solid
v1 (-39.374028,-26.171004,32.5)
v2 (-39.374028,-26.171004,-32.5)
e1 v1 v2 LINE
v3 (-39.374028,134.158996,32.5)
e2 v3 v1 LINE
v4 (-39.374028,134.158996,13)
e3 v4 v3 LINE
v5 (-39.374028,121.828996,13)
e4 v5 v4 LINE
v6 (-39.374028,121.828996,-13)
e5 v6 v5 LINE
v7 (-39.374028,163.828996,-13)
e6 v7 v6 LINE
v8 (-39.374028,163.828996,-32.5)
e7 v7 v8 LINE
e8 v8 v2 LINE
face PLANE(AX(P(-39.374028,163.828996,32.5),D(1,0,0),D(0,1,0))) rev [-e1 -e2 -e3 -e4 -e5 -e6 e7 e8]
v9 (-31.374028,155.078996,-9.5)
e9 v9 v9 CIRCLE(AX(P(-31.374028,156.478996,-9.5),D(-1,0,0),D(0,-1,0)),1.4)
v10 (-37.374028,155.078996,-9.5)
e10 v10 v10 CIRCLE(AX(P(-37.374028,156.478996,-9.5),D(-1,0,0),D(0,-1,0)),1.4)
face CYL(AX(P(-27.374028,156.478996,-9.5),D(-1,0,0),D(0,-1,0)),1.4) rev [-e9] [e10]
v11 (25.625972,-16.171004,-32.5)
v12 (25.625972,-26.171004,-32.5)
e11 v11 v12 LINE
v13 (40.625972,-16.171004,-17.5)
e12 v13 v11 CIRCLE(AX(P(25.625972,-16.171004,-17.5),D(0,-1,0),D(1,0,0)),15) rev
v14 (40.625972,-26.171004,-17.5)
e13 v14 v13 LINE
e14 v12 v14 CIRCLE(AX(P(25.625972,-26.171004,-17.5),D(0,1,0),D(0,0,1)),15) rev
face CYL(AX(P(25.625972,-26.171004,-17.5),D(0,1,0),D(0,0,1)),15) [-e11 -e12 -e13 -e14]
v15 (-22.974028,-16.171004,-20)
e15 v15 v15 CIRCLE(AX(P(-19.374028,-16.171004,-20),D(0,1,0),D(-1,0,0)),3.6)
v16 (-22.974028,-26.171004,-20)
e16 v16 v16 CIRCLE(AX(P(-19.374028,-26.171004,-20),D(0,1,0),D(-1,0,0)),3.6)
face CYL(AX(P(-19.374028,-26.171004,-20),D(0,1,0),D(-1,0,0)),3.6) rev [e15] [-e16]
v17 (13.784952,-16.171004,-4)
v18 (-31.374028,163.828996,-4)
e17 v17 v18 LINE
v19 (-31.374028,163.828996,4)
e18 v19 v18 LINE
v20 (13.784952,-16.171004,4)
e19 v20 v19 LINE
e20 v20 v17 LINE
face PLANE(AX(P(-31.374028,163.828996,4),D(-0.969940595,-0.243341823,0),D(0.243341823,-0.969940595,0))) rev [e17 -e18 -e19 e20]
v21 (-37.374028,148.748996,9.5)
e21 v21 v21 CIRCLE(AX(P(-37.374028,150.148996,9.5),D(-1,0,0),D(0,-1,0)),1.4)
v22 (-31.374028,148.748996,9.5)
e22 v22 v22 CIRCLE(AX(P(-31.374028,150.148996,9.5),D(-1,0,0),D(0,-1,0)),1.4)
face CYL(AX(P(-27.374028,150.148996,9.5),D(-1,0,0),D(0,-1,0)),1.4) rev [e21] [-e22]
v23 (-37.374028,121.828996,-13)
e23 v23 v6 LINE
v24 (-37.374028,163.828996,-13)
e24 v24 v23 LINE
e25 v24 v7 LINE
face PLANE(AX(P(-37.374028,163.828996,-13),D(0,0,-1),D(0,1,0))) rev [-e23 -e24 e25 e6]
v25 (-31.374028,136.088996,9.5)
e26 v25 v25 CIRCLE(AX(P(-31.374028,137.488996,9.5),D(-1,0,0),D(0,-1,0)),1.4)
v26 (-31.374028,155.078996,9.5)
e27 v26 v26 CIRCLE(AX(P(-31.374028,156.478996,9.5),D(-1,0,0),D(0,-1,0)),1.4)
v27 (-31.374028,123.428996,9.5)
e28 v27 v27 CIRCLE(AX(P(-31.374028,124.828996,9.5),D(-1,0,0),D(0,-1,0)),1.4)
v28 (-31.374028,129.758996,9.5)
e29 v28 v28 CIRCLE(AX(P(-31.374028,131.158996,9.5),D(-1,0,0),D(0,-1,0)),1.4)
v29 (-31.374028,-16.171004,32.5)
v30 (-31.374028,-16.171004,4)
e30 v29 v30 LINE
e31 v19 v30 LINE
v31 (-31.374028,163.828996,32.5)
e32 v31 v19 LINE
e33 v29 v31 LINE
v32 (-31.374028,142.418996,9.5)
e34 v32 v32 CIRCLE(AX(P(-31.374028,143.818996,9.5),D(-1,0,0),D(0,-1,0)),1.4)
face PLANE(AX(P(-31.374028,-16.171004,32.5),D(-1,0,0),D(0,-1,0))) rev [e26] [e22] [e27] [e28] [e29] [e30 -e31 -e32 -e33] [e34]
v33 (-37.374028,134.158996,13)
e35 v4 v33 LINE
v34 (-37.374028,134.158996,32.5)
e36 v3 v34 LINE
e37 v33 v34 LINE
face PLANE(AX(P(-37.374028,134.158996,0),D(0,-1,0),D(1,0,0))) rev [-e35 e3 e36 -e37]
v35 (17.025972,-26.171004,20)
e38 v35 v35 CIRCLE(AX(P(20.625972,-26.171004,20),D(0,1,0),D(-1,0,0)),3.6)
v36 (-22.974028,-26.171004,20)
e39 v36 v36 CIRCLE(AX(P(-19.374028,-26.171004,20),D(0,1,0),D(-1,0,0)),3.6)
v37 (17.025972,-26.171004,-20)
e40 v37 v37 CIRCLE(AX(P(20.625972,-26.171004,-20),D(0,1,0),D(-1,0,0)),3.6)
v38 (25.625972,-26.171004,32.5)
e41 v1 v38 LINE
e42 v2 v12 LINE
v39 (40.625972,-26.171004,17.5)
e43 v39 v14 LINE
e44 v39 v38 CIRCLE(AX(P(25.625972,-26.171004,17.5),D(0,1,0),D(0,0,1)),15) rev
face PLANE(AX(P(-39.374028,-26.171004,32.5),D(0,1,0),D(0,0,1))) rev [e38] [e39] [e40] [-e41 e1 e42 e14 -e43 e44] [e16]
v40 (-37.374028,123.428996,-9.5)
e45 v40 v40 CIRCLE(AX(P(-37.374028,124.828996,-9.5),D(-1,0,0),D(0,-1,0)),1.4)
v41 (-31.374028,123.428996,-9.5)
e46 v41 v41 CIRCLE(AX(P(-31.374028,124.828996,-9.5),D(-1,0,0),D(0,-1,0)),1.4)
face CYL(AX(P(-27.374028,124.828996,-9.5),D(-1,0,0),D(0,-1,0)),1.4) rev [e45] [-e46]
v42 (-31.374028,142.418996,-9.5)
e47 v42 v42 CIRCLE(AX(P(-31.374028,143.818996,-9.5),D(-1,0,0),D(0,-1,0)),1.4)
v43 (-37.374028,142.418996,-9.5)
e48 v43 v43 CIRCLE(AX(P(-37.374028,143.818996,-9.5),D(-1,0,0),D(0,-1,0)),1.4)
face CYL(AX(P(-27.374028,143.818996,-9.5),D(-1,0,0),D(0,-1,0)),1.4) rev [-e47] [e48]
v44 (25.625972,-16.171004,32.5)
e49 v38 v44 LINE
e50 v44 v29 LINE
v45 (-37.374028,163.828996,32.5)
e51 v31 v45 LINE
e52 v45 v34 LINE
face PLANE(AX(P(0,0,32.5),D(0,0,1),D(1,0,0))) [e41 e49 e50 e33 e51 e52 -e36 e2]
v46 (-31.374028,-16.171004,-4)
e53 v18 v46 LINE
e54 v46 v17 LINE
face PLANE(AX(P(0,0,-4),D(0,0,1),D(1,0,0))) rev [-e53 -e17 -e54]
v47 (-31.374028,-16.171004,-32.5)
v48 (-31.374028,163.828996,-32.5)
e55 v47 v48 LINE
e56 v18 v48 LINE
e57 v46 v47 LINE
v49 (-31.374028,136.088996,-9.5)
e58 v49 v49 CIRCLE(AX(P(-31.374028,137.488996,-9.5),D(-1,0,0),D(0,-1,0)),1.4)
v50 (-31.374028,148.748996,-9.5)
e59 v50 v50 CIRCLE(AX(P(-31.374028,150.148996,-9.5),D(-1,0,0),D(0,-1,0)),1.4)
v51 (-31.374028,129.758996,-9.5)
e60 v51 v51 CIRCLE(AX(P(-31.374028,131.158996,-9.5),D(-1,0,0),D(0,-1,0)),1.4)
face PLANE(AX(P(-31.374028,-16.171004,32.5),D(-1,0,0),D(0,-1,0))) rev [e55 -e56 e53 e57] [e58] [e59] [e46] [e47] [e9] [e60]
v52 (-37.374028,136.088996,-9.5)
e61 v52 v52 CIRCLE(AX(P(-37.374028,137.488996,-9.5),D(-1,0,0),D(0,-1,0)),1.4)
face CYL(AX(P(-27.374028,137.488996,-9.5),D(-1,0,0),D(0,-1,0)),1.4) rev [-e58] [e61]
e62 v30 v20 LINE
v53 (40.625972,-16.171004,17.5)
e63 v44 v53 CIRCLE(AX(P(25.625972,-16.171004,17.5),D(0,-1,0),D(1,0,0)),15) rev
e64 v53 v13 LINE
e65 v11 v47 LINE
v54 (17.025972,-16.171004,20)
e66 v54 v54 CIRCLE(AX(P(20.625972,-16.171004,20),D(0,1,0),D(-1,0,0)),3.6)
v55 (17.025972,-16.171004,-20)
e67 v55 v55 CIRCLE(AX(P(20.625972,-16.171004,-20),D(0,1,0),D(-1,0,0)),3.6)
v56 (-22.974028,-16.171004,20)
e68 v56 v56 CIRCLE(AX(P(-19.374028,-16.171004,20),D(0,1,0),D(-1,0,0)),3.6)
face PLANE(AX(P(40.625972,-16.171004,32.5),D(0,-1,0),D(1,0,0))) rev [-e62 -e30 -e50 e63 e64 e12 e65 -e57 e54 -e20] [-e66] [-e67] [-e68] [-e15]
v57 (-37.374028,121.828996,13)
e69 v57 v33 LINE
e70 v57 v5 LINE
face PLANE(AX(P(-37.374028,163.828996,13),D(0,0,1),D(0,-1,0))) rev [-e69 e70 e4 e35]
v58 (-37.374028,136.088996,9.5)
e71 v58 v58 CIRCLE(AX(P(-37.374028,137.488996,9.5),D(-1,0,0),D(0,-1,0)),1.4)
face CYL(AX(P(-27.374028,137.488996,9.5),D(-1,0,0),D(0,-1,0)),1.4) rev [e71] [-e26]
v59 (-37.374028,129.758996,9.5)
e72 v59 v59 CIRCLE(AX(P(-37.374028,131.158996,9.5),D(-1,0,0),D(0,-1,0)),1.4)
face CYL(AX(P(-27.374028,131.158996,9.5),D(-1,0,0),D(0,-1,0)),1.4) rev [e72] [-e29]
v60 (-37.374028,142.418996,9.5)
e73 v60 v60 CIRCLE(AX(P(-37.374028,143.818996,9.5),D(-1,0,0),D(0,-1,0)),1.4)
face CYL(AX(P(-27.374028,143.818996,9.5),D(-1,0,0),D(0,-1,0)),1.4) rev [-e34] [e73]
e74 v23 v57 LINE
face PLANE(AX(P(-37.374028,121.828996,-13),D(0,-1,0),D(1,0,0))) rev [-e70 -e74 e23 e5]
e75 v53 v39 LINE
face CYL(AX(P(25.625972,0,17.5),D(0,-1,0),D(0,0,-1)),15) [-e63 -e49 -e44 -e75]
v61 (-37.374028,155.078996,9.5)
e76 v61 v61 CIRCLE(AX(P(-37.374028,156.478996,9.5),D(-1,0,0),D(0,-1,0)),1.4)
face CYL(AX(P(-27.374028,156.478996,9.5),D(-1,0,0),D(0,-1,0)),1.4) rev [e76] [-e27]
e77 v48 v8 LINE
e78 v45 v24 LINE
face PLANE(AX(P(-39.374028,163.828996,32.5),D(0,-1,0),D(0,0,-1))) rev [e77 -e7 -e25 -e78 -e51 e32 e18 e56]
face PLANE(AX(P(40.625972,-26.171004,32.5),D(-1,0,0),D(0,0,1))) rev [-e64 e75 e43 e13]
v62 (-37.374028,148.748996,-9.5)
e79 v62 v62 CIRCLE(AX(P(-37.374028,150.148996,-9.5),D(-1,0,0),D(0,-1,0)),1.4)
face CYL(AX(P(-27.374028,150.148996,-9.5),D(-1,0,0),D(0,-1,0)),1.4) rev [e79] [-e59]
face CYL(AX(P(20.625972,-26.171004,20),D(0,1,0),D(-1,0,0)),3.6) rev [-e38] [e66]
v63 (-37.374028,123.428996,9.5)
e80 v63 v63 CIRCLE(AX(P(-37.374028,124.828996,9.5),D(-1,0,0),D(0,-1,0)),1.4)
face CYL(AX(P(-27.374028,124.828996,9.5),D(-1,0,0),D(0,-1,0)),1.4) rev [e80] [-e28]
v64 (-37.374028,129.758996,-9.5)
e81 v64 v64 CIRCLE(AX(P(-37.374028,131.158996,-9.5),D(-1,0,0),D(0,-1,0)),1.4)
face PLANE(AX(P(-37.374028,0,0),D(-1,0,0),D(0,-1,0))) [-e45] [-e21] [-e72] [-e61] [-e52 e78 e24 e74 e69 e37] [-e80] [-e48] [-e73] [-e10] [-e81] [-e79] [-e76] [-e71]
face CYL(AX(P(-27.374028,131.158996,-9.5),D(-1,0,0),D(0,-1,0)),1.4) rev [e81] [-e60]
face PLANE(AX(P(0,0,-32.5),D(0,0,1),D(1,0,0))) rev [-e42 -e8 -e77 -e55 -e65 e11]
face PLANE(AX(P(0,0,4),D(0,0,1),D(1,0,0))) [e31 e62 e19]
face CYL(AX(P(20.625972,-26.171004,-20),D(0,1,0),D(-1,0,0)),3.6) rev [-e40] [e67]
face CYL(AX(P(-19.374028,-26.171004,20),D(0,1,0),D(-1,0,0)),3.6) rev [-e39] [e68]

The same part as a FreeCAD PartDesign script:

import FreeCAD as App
import Part
import Sketcher


def edges_at(feature, points):
    """Names of the edges that pass closest to the given points."""
    edges = feature.Shape.Edges
    near = lambda p: min(range(len(edges)), key=lambda i: edges[i].distToShape(Part.Vertex(*p))[0])
    return sorted({f"Edge{near(p) + 1}" for p in points})


def add_polygon(sketch, points):
    """Adds a closed chain of lines whose ends are joined by coincident constraints."""
    first, n = sketch.GeometryCount, len(points)
    for a, b in zip(points, points[1:] + points[:1]):
        sketch.addGeometry(Part.LineSegment(App.Vector(*a, 0), App.Vector(*b, 0)), False)
    for i in range(n):
        sketch.addConstraint(Sketcher.Constraint("Coincident", first + i, 2, first + (i + 1) % n, 1))

doc = App.newDocument("Part")
body = doc.addObject("PartDesign::Body", "Body")

# Sketch on XY plane
sketch1 = body.newObject("Sketcher::SketchObject", "Sketch")
sketch1.AttachmentSupport = (doc.getObject("XY_Plane"), [""])
sketch1.MapMode = "FlatFace"
add_polygon(sketch1, [(-39, 164), (-39, -26), (41, -26), (41, -16), (-31, -16), (-31, 164)])  # lines 0-5
sketch1.addConstraint(Sketcher.Constraint("Vertical", 0))
sketch1.addConstraint(Sketcher.Constraint("Horizontal", 1))
sketch1.addConstraint(Sketcher.Constraint("Vertical", 2))
sketch1.addConstraint(Sketcher.Constraint("Horizontal", 3))
sketch1.addConstraint(Sketcher.Constraint("Vertical", 4))
sketch1.addConstraint(Sketcher.Constraint("Horizontal", 5))
sketch1.addConstraint(Sketcher.Constraint("DistanceX", 1, 1, 1, 2, 80.0))
sketch1.addConstraint(Sketcher.Constraint("DistanceX", 3, 2, 3, 1, 72.0))
sketch1.addConstraint(Sketcher.Constraint("DistanceY", 0, 2, 0, 1, 190.0))
sketch1.addConstraint(Sketcher.Constraint("DistanceY", 2, 1, 2, 2, 10.0))
sketch1.addConstraint(Sketcher.Constraint("DistanceX", 0, 2, -1, 1, 39.374028))
sketch1.addConstraint(Sketcher.Constraint("DistanceY", 0, 2, -1, 1, 26.171004))
pad1 = body.newObject("PartDesign::Pad", "Pad")
pad1.Profile = sketch1
pad1.Length = 65
pad1.Midplane = True

# Sketch on XY plane
sketch2 = body.newObject("Sketcher::SketchObject", "Sketch001")
sketch2.AttachmentSupport = (doc.getObject("XY_Plane"), [""])
sketch2.MapMode = "FlatFace"
add_polygon(sketch2, [(14, -16), (-31, 164), (-31, -16)])  # lines 0-2
sketch2.addConstraint(Sketcher.Constraint("Vertical", 1))
sketch2.addConstraint(Sketcher.Constraint("Horizontal", 2))
sketch2.addConstraint(Sketcher.Constraint("DistanceY", 1, 2, 1, 1, 180.0))
sketch2.addConstraint(Sketcher.Constraint("DistanceX", 2, 1, 2, 2, 45.15898))
sketch2.addConstraint(Sketcher.Constraint("DistanceX", 0, 2, -1, 1, 31.374028))
sketch2.addConstraint(Sketcher.Constraint("DistanceY", -1, 1, 0, 2, 163.828996))
pad2 = body.newObject("PartDesign::Pad", "Pad001")
pad2.Profile = sketch2
pad2.Length = 8
pad2.Midplane = True

# Sketch on YZ plane
sketch3 = body.newObject("Sketcher::SketchObject", "Sketch002")
sketch3.AttachmentSupport = (doc.getObject("YZ_Plane"), [""])
sketch3.MapMode = "FlatFace"
sketch3.AttachmentOffset = App.Placement(App.Vector(0, 0, -39.374028), App.Rotation())
add_polygon(sketch3, [(164, -13), (122, -13), (122, 13), (164, 13)])  # lines 0-3
sketch3.addConstraint(Sketcher.Constraint("Horizontal", 0))
sketch3.addConstraint(Sketcher.Constraint("Vertical", 1))
sketch3.addConstraint(Sketcher.Constraint("Horizontal", 2))
sketch3.addConstraint(Sketcher.Constraint("Vertical", 3))
sketch3.addConstraint(Sketcher.Constraint("DistanceX", 0, 2, 0, 1, 42.0))
sketch3.addConstraint(Sketcher.Constraint("DistanceY", 1, 1, 1, 2, 26.0))
sketch3.addConstraint(Sketcher.Constraint("DistanceY", 0, 2, -1, 1, 13.0))
sketch3.addConstraint(Sketcher.Constraint("DistanceX", -1, 1, 0, 2, 121.828996))
pocket1 = body.newObject("PartDesign::Pocket", "Pocket")
pocket1.Profile = sketch3
pocket1.Length = 2
pocket1.Reversed = True

# Sketch on YZ plane
sketch4 = body.newObject("Sketcher::SketchObject", "Sketch003")
sketch4.AttachmentSupport = (doc.getObject("YZ_Plane"), [""])
sketch4.MapMode = "FlatFace"
sketch4.AttachmentOffset = App.Placement(App.Vector(0, 0, -37.374028), App.Rotation())
sketch4.addGeometry(Part.Circle(App.Vector(124.8, -9.5, 0), App.Vector(0, 0, 1), 1.4), False)
sketch4.addGeometry(Part.Circle(App.Vector(124.8, 9.5, 0), App.Vector(0, 0, 1), 1.4), False)
sketch4.addGeometry(Part.Circle(App.Vector(131.2, -9.5, 0), App.Vector(0, 0, 1), 1.4), False)
sketch4.addGeometry(Part.Circle(App.Vector(131.2, 9.5, 0), App.Vector(0, 0, 1), 1.4), False)
sketch4.addGeometry(Part.Circle(App.Vector(137.5, -9.5, 0), App.Vector(0, 0, 1), 1.4), False)
sketch4.addGeometry(Part.Circle(App.Vector(137.5, 9.5, 0), App.Vector(0, 0, 1), 1.4), False)
sketch4.addGeometry(Part.Circle(App.Vector(143.8, -9.5, 0), App.Vector(0, 0, 1), 1.4), False)
sketch4.addGeometry(Part.Circle(App.Vector(143.8, 9.5, 0), App.Vector(0, 0, 1), 1.4), False)
sketch4.addGeometry(Part.Circle(App.Vector(150.1, -9.5, 0), App.Vector(0, 0, 1), 1.4), False)
sketch4.addGeometry(Part.Circle(App.Vector(150.1, 9.5, 0), App.Vector(0, 0, 1), 1.4), False)
sketch4.addGeometry(Part.Circle(App.Vector(156.5, -9.5, 0), App.Vector(0, 0, 1), 1.4), False)
sketch4.addGeometry(Part.Circle(App.Vector(156.5, 9.5, 0), App.Vector(0, 0, 1), 1.4), False)
sketch4.addConstraint(Sketcher.Constraint("Equal", 0, 1))
sketch4.addConstraint(Sketcher.Constraint("Equal", 1, 2))
sketch4.addConstraint(Sketcher.Constraint("Equal", 2, 3))
sketch4.addConstraint(Sketcher.Constraint("Equal", 3, 4))
sketch4.addConstraint(Sketcher.Constraint("Equal", 4, 5))
sketch4.addConstraint(Sketcher.Constraint("Equal", 5, 6))
sketch4.addConstraint(Sketcher.Constraint("Equal", 6, 7))
sketch4.addConstraint(Sketcher.Constraint("Equal", 7, 8))
sketch4.addConstraint(Sketcher.Constraint("Equal", 8, 9))
sketch4.addConstraint(Sketcher.Constraint("Equal", 9, 10))
sketch4.addConstraint(Sketcher.Constraint("Equal", 10, 11))
sketch4.addConstraint(Sketcher.Constraint("Symmetric", 0, 3, 1, 3, -1))
sketch4.addConstraint(Sketcher.Constraint("Symmetric", 2, 3, 3, 3, -1))
sketch4.addConstraint(Sketcher.Constraint("Symmetric", 4, 3, 5, 3, -1))
sketch4.addConstraint(Sketcher.Constraint("Symmetric", 6, 3, 7, 3, -1))
sketch4.addConstraint(Sketcher.Constraint("Symmetric", 8, 3, 9, 3, -1))
sketch4.addConstraint(Sketcher.Constraint("Symmetric", 10, 3, 11, 3, -1))
sketch4.addConstraint(Sketcher.Constraint("Horizontal", 0, 3, 2, 3))
sketch4.addConstraint(Sketcher.Constraint("Horizontal", 2, 3, 4, 3))
sketch4.addConstraint(Sketcher.Constraint("Horizontal", 4, 3, 6, 3))
sketch4.addConstraint(Sketcher.Constraint("Horizontal", 6, 3, 8, 3))
sketch4.addConstraint(Sketcher.Constraint("Horizontal", 8, 3, 10, 3))
sketch4.addConstraint(Sketcher.Constraint("Diameter", 0, 2.8))
sketch4.addConstraint(Sketcher.Constraint("DistanceY", 0, 3, 1, 3, 19.0))
sketch4.addConstraint(Sketcher.Constraint("DistanceX", 0, 3, 2, 3, 6.33))
sketch4.addConstraint(Sketcher.Constraint("DistanceX", 2, 3, 4, 3, 6.33))
sketch4.addConstraint(Sketcher.Constraint("DistanceX", 4, 3, 6, 3, 6.33))
sketch4.addConstraint(Sketcher.Constraint("DistanceX", 6, 3, 8, 3, 6.33))
sketch4.addConstraint(Sketcher.Constraint("DistanceX", 8, 3, 10, 3, 6.33))
sketch4.addConstraint(Sketcher.Constraint("DistanceX", -1, 1, 0, 3, 124.828996))
pocket2 = body.newObject("PartDesign::Pocket", "Pocket001")
pocket2.Profile = sketch4
pocket2.Length = 10
pocket2.Reversed = True

# Sketch on YZ plane
sketch5 = body.newObject("Sketcher::SketchObject", "Sketch004")
sketch5.AttachmentSupport = (doc.getObject("YZ_Plane"), [""])
sketch5.MapMode = "FlatFace"
sketch5.AttachmentOffset = App.Placement(App.Vector(0, 0, -39.374028), App.Rotation())
add_polygon(sketch5, [(164, 0), (134, 0), (134, 34), (164, 34)])  # lines 0-3
sketch5.addConstraint(Sketcher.Constraint("Horizontal", 0))
sketch5.addConstraint(Sketcher.Constraint("Vertical", 1))
sketch5.addConstraint(Sketcher.Constraint("Horizontal", 2))
sketch5.addConstraint(Sketcher.Constraint("Vertical", 3))
sketch5.addConstraint(Sketcher.Constraint("PointOnObject", 0, 2, -1))
sketch5.addConstraint(Sketcher.Constraint("DistanceX", 0, 2, 0, 1, 30.0))
sketch5.addConstraint(Sketcher.Constraint("DistanceY", 1, 1, 1, 2, 34.028268))
sketch5.addConstraint(Sketcher.Constraint("DistanceX", -1, 1, 0, 2, 134.158996))
pocket3 = body.newObject("PartDesign::Pocket", "Pocket002")
pocket3.Profile = sketch5
pocket3.Length = 2
pocket3.Reversed = True

# Sketch on XZ plane
sketch6 = body.newObject("Sketcher::SketchObject", "Sketch005")
sketch6.AttachmentSupport = (doc.getObject("XZ_Plane"), [""])
sketch6.MapMode = "FlatFace"
sketch6.AttachmentOffset = App.Placement(App.Vector(0, 0, 16.171004), App.Rotation())
sketch6.addGeometry(Part.Circle(App.Vector(20.6, -20, 0), App.Vector(0, 0, 1), 3.6), False)
sketch6.addGeometry(Part.Circle(App.Vector(20.6, 20, 0), App.Vector(0, 0, 1), 3.6), False)
sketch6.addGeometry(Part.Circle(App.Vector(-19.4, -20, 0), App.Vector(0, 0, 1), 3.6), False)
sketch6.addGeometry(Part.Circle(App.Vector(-19.4, 20, 0), App.Vector(0, 0, 1), 3.6), False)
sketch6.addConstraint(Sketcher.Constraint("Equal", 0, 1))
sketch6.addConstraint(Sketcher.Constraint("Equal", 1, 2))
sketch6.addConstraint(Sketcher.Constraint("Equal", 2, 3))
sketch6.addConstraint(Sketcher.Constraint("Symmetric", 0, 3, 1, 3, -1))
sketch6.addConstraint(Sketcher.Constraint("Symmetric", 2, 3, 3, 3, -1))
sketch6.addConstraint(Sketcher.Constraint("Horizontal", 0, 3, 2, 3))
sketch6.addConstraint(Sketcher.Constraint("Diameter", 0, 7.2))
sketch6.addConstraint(Sketcher.Constraint("DistanceY", 0, 3, -1, 1, 20.0))
sketch6.addConstraint(Sketcher.Constraint("DistanceX", 2, 3, 0, 3, 40.0))
sketch6.addConstraint(Sketcher.Constraint("DistanceX", -1, 1, 0, 3, 20.625972))
pocket4 = body.newObject("PartDesign::Pocket", "Pocket003")
pocket4.Profile = sketch6
pocket4.Length = 10
pocket4.Reversed = True
doc.recompute()

fillet = body.newObject("PartDesign::Fillet", "Fillet")
fillet.Base = (pocket4, edges_at(pocket4, [(40.626, -21.171, 32.5), (40.626, -21.171, -32.5)]))
fillet.Radius = 15

doc.recompute()
